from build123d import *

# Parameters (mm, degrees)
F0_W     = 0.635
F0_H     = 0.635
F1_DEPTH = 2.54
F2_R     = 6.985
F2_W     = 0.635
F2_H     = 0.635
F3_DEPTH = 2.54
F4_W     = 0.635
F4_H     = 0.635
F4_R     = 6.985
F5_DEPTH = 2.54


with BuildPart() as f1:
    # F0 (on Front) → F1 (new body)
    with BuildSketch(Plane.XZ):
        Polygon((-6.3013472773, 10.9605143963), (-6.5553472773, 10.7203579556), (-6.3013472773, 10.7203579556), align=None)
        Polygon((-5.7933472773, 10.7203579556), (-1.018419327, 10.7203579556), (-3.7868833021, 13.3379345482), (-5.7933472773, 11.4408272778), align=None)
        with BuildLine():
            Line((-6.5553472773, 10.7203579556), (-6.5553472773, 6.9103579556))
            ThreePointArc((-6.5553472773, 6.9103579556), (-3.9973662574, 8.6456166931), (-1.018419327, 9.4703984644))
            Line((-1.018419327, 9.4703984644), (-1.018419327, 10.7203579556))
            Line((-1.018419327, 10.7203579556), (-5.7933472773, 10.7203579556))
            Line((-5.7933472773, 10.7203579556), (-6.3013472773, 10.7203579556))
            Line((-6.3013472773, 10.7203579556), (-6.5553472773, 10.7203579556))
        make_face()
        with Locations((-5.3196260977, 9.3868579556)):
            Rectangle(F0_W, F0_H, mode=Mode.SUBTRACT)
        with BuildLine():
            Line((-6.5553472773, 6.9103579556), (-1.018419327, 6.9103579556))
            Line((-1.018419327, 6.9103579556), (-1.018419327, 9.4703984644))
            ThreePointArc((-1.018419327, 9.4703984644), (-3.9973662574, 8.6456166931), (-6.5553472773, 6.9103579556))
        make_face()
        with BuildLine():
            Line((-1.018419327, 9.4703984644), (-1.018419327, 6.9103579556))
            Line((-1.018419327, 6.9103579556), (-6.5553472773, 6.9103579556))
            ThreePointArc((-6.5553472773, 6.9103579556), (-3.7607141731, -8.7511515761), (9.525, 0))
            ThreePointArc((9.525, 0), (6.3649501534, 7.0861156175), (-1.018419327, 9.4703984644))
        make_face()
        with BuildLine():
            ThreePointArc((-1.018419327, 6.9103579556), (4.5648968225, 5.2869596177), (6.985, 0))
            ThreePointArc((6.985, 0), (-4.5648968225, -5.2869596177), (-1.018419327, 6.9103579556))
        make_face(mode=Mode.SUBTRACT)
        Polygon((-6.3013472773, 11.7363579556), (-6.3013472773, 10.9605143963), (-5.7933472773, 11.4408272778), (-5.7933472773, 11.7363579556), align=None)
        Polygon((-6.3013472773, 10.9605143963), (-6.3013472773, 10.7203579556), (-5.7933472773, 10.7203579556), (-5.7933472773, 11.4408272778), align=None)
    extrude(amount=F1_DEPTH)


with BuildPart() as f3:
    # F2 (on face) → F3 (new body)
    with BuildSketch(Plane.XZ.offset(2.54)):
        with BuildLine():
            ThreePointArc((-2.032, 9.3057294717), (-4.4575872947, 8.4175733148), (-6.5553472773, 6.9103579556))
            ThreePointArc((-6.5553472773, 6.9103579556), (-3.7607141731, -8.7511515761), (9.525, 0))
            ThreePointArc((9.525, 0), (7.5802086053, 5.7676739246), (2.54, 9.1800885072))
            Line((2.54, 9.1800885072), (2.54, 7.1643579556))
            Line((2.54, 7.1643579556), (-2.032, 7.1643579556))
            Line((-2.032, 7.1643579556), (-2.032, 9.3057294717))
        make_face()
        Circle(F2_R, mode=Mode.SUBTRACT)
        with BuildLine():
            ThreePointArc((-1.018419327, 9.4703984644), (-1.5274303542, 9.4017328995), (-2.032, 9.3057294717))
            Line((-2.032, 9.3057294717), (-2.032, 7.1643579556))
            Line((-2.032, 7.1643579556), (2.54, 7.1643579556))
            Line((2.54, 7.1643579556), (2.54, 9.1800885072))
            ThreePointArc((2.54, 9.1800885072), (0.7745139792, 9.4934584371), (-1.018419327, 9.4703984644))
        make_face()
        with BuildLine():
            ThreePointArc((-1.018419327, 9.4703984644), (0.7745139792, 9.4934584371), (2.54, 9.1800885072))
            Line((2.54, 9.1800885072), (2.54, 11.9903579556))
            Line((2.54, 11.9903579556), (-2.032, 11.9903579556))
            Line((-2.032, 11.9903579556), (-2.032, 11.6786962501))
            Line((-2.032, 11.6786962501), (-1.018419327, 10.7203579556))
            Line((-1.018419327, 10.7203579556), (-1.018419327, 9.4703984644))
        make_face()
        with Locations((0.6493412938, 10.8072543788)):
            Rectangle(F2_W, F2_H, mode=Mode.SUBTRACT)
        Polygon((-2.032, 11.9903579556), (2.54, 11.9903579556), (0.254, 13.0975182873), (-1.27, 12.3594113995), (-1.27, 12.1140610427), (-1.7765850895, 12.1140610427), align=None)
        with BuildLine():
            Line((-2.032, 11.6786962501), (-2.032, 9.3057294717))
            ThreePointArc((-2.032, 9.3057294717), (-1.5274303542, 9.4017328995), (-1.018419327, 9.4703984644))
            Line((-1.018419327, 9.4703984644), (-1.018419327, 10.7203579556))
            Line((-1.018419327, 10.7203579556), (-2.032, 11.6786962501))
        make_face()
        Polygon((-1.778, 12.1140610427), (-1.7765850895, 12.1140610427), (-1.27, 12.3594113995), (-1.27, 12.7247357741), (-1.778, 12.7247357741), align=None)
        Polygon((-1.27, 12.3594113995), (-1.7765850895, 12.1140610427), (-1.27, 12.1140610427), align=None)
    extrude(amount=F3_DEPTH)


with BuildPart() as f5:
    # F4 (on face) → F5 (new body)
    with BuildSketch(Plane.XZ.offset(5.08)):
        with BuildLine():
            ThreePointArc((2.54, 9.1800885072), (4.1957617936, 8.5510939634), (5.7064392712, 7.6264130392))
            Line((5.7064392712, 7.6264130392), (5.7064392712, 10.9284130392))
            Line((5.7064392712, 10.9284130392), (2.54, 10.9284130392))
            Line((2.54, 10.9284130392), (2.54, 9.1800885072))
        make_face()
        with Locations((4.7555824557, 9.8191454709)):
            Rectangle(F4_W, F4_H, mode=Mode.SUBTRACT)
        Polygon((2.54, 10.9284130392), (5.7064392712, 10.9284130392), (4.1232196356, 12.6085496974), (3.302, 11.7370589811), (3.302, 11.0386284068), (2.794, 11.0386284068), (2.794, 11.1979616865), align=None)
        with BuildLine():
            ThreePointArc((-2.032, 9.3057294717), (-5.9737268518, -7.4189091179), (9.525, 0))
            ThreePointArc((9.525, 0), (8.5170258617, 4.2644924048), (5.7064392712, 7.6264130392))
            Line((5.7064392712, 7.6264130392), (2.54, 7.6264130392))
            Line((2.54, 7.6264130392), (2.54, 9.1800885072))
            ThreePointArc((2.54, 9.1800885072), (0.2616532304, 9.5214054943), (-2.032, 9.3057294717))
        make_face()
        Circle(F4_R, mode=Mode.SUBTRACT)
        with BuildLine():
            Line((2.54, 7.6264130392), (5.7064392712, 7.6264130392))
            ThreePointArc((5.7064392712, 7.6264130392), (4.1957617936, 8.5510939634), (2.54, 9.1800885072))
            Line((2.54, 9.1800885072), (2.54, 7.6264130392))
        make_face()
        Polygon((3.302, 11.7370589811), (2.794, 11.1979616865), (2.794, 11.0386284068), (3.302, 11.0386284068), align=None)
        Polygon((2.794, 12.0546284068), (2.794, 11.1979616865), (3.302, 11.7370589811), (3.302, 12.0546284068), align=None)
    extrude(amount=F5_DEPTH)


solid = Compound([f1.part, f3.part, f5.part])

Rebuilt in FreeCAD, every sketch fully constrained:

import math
import FreeCAD as App
import Part
import Sketcher

V = App.Vector
Q = App.Units.Quantity

doc = App.newDocument("Part")
body = doc.addObject("PartDesign::Body", "Body")

# Sketch on XZ plane
sketch1 = body.newObject("Sketcher::SketchObject", "Sketch")
sketch1.AttachmentSupport = (doc.getObject("XZ_Plane"), [""])
sketch1.MapMode = "FlatFace"
sketch1.addGeometry([
    Part.LineSegment(V(-6.301347, 11.736358, 0), V(-6.301347, 10.960514, 0)),  # 0
    Part.LineSegment(V(-6.301347, 10.960514, 0), V(-6.555347, 10.720358, 0)),  # 1
    Part.LineSegment(V(-6.555347, 10.720358, 0), V(-6.555347, 6.910358, 0)),  # 2
    Part.ArcOfCircle(Part.Circle(V(0, 0, 0), V(0, 0, 1), 9.525), math.radians(133.4898), math.radians(360)),  # 3
    Part.ArcOfCircle(Part.Circle(V(0, 0, 0), V(0, 0, 1), 9.525), math.radians(0), math.radians(96.137836)),  # 4
    Part.LineSegment(V(-1.018419, 9.470398, 0), V(-1.018419, 10.720358, 0)),  # 5
    Part.LineSegment(V(-1.018419, 10.720358, 0), V(-3.786883, 13.337935, 0)),  # 6
    Part.LineSegment(V(-3.786883, 13.337935, 0), V(-5.793347, 11.440827, 0)),  # 7
    Part.LineSegment(V(-5.793347, 11.440827, 0), V(-5.793347, 11.736358, 0)),  # 8
    Part.LineSegment(V(-5.793347, 11.736358, 0), V(-6.301347, 11.736358, 0)),  # 9
    Part.ArcOfCircle(Part.Circle(V(0, 0, 0), V(0, 0, 1), 6.985), math.radians(98.383661), math.radians(360)),  # 10
    Part.ArcOfCircle(Part.Circle(V(0, 0, 0), V(0, 0, 1), 6.985), math.radians(0), math.radians(98.383661)),  # 11
    Part.LineSegment(V(-5.002126, 9.069358, 0), V(-5.637126, 9.069358, 0)),  # 12
    Part.LineSegment(V(-5.637126, 9.069358, 0), V(-5.637126, 9.704358, 0)),  # 13
    Part.LineSegment(V(-5.637126, 9.704358, 0), V(-5.002126, 9.704358, 0)),  # 14
    Part.LineSegment(V(-5.002126, 9.704358, 0), V(-5.002126, 9.069358, 0)),  # 15
], False)
sketch1.addConstraint([
    Sketcher.Constraint("Coincident", 0, 2, 1, 1),
    Sketcher.Constraint("Coincident", 1, 2, 2, 1),
    Sketcher.Constraint("Coincident", 2, 2, 3, 1),
    Sketcher.Constraint("Coincident", 3, 2, 4, 1),
    Sketcher.Constraint("Coincident", 4, 2, 5, 1),
    Sketcher.Constraint("Coincident", 5, 2, 6, 1),
    Sketcher.Constraint("Coincident", 6, 2, 7, 1),
    Sketcher.Constraint("Coincident", 7, 2, 8, 1),
    Sketcher.Constraint("Coincident", 8, 2, 9, 1),
    Sketcher.Constraint("Coincident", 9, 2, 0, 1),
    Sketcher.Constraint("Coincident", 10, 1, 11, 2),
    Sketcher.Constraint("Coincident", 11, 1, 10, 2),
    Sketcher.Constraint("Coincident", 12, 2, 13, 1),
    Sketcher.Constraint("Coincident", 13, 2, 14, 1),
    Sketcher.Constraint("Coincident", 14, 2, 15, 1),
    Sketcher.Constraint("Coincident", 15, 2, 12, 1),
    Sketcher.Constraint("Vertical", 0),
    Sketcher.Constraint("Vertical", 2),
    Sketcher.Constraint("Vertical", 5),
    Sketcher.Constraint("Vertical", 8),
    Sketcher.Constraint("Horizontal", 9),
    Sketcher.Constraint("Horizontal", 12),
    Sketcher.Constraint("Vertical", 13),
    Sketcher.Constraint("Horizontal", 14),
    Sketcher.Constraint("Vertical", 15),
    Sketcher.Constraint("Coincident", 3, 3, -1, 1),
    Sketcher.Constraint("Coincident", 4, 3, -1, 1),
    Sketcher.Constraint("Coincident", 10, 3, -1, 1),
    Sketcher.Constraint("PointOnObject", 3, 2, -1),
    Sketcher.Constraint("PointOnObject", 11, 1, -1),
    Sketcher.Constraint("Radius", 3, Q("0.375 in")),
    Sketcher.Constraint("Radius", 10, Q("0.275 in")),
    Sketcher.Constraint("Radius", 11, Q("0.275 in")),
    Sketcher.Constraint("DistanceX", 9, 2, 9, 1, Q("0.02 in")),
    Sketcher.Constraint("DistanceY", 2, 2, 2, 1, Q("0.15 in")),
    Sketcher.Constraint("Distance", 6, Q("0.15 in")),
    Sketcher.Constraint("DistanceX", 12, 2, 12, 1, Q("0.025 in")),
    Sketcher.Constraint("DistanceY", 13, 1, 13, 2, Q("0.025 in")),
    Sketcher.Constraint("DistanceX", 1, 2, 0, 2, Q("0.01 in")),
    Sketcher.Constraint("DistanceY", 2, 2, 5, 2, Q("0.15 in")),
    Sketcher.Constraint("DistanceY", 1, 2, 8, 2, Q("0.04 in")),
    Sketcher.Constraint("DistanceY", 10, 1, 5, 2, Q("0.15 in")),
    Sketcher.Constraint("DistanceY", 13, 2, 1, 2, Q("0.04 in")),
    Sketcher.Constraint("DistanceY", 5, 1, 5, 2, Q("1.249959 mm")),
    Sketcher.Constraint("DistanceY", 8, 1, 8, 2, Q("0.295531 mm")),
    Sketcher.Constraint("DistanceY", -1, 1, 4, 2, Q("9.470398 mm")),
    Sketcher.Constraint("Distance", 1, Q("0.349558 mm")),
    Sketcher.Constraint("DistanceY", 0, 2, 6, 2, Q("2.37742 mm")),
    Sketcher.Constraint("DistanceX", 1, 2, 12, 2, Q("0.918221 mm")),
])
pad1 = body.newObject("PartDesign::Pad", "Pad")
pad1.Profile = sketch1
pad1.Length = Q("0.1 in")
body2 = doc.addObject("PartDesign::Body", "Body001")

# Sketch on XZ plane
sketch2 = body2.newObject("Sketcher::SketchObject", "Sketch001")
sketch2.AttachmentSupport = (doc.getObject("XZ_Plane001"), [""])
sketch2.MapMode = "FlatFace"
sketch2.AttachmentOffset = App.Placement(V(0, 0, 0.1 * 25.4), App.Rotation())
sketch2.addGeometry([
    Part.LineSegment(V(-2.032, 11.9904, 0), V(-2.032, 9.3057, 0)),  # 0
    Part.ArcOfCircle(Part.Circle(V(0, 0, 0), V(0, 0, 1), 9.525), math.radians(102), math.radians(133)),  # 1
    Part.ArcOfCircle(Part.Circle(V(0, 0, 0), V(0, 0, 1), 9.525), math.radians(133), math.radians(360)),  # 2
    Part.ArcOfCircle(Part.Circle(V(0, 0, 0), V(0, 0, 1), 9.525), math.radians(0), math.radians(75)),  # 3
    Part.LineSegment(V(2.54, 9.1801, 0), V(2.54, 11.9904, 0)),  # 4
    Part.LineSegment(V(2.54, 11.9904, 0), V(0.254, 13.0975, 0)),  # 5
    Part.LineSegment(V(0.254, 13.0975, 0), V(-1.27, 12.3594, 0)),  # 6
    Part.LineSegment(V(-1.27, 12.3594, 0), V(-1.27, 12.7247, 0)),  # 7
    Part.LineSegment(V(-1.27, 12.7247, 0), V(-1.778, 12.7247, 0)),  # 8
    Part.LineSegment(V(-1.778, 12.7247, 0), V(-1.778, 12.1141, 0)),  # 9
    Part.LineSegment(V(-1.778, 12.1141, 0), V(-1.7766, 12.1141, 0)),  # 10
    Part.LineSegment(V(-1.7766, 12.1141, 0), V(-2.032, 11.9904, 0)),  # 11
    Part.Circle(V(0, 0, 0), V(0, 0, 1), 6.985),  # 12
    Part.LineSegment(V(0.9668, 10.4898, 0), V(0.3318, 10.4898, 0)),  # 13
    Part.LineSegment(V(0.3318, 10.4898, 0), V(0.3318, 11.1248, 0)),  # 14
    Part.LineSegment(V(0.3318, 11.1248, 0), V(0.9668, 11.1248, 0)),  # 15
    Part.LineSegment(V(0.9668, 11.1248, 0), V(0.9668, 10.4898, 0)),  # 16
], False)
sketch2.addConstraint([
    Sketcher.Constraint("Coincident", 0, 2, 1, 1),
    Sketcher.Constraint("Tangent", 1, 2, 2, 1),
    Sketcher.Constraint("Tangent", 2, 2, 3, 1),
    Sketcher.Constraint("Coincident", 3, 2, 4, 1),
    Sketcher.Constraint("Coincident", 4, 2, 5, 1),
    Sketcher.Constraint("Coincident", 5, 2, 6, 1),
    Sketcher.Constraint("Coincident", 6, 2, 7, 1),
    Sketcher.Constraint("Coincident", 7, 2, 8, 1),
    Sketcher.Constraint("Coincident", 8, 2, 9, 1),
    Sketcher.Constraint("Coincident", 9, 2, 10, 1),
    Sketcher.Constraint("Coincident", 10, 2, 11, 1),
    Sketcher.Constraint("Coincident", 11, 2, 0, 1),
    Sketcher.Constraint("Coincident", 13, 2, 14, 1),
    Sketcher.Constraint("Coincident", 14, 2, 15, 1),
    Sketcher.Constraint("Coincident", 15, 2, 16, 1),
    Sketcher.Constraint("Coincident", 16, 2, 13, 1),
    Sketcher.Constraint("Vertical", 0),
    Sketcher.Constraint("Vertical", 4),
    Sketcher.Constraint("Vertical", 7),
    Sketcher.Constraint("Horizontal", 8),
    Sketcher.Constraint("Vertical", 9),
    Sketcher.Constraint("Horizontal", 10),
    Sketcher.Constraint("Horizontal", 13),
    Sketcher.Constraint("Vertical", 14),
    Sketcher.Constraint("Horizontal", 15),
    Sketcher.Constraint("Vertical", 16),
    Sketcher.Constraint("Coincident", 1, 3, -1, 1),
    Sketcher.Constraint("Coincident", 3, 3, -1, 1),
    Sketcher.Constraint("Coincident", 12, 3, -1, 1),
    Sketcher.Constraint("PointOnObject", 2, 2, -1),
    Sketcher.Constraint("Parallel", 6, 11),
    Sketcher.Constraint("Horizontal", 4, 2, 11, 2),
    Sketcher.Constraint("Equal", 15, 14),
    Sketcher.Constraint("Diameter", 12, Q("0.55 in")),
    Sketcher.Constraint("Radius", 1, Q("0.375 in")),
    Sketcher.Constraint("Distance", 5, Q("0.1 in")),
    Sketcher.Constraint("DistanceX", 8, 2, 8, 1, Q("0.02 in")),
    Sketcher.Constraint("DistanceX", -1, 1, 3, 2, Q("0.1 in")),
    Sketcher.Constraint("DistanceY", 1, 2, 4, 2, Q("0.2 in")),
    Sketcher.Constraint("DistanceX", 13, 2, 13, 1, Q("0.025 in")),
    Sketcher.Constraint("DistanceX", 0, 2, -1, 1, Q("0.08 in")),
    Sketcher.Constraint("DistanceX", -1, 1, 5, 2, Q("0.01 in")),
    Sketcher.Constraint("DistanceX", 6, 2, -1, 1, Q("0.05 in")),
    Sketcher.Constraint("DistanceY", 0, 2, 0, 1, Q("2.684628 mm")),
    Sketcher.Constraint("DistanceX", 10, 1, 10, 2, Q("0.001415 mm")),
    Sketcher.Constraint("DistanceY", 7, 1, 7, 2, Q("0.365324 mm")),
    Sketcher.Constraint("DistanceY", 9, 2, 9, 1, Q("0.610675 mm")),
    Sketcher.Constraint("DistanceX", -1, 1, 13, 2, Q("0.331841 mm")),
    Sketcher.Constraint("DistanceY", 14, 2, 7, 2, Q("1.599981 mm")),
])
pad2 = body2.newObject("PartDesign::Pad", "Pad001")
pad2.Profile = sketch2
pad2.Length = Q("0.1 in")
body3 = doc.addObject("PartDesign::Body", "Body002")

# Sketch on XZ plane
sketch3 = body3.newObject("Sketcher::SketchObject", "Sketch002")
sketch3.AttachmentSupport = (doc.getObject("XZ_Plane002"), [""])
sketch3.MapMode = "FlatFace"
sketch3.AttachmentOffset = App.Placement(V(0, 0, 0.2 * 25.4), App.Rotation())
sketch3.addGeometry([
    Part.LineSegment(V(5.71, 7.63, 0), V(5.71, 10.93, 0)),  # 0
    Part.LineSegment(V(5.71, 10.93, 0), V(4.12, 12.61, 0)),  # 1
    Part.LineSegment(V(4.12, 12.61, 0), V(3.3, 11.74, 0)),  # 2
    Part.LineSegment(V(3.3, 11.74, 0), V(3.3, 12.05, 0)),  # 3
    Part.LineSegment(V(3.3, 12.05, 0), V(2.79, 12.05, 0)),  # 4
    Part.LineSegment(V(2.79, 12.05, 0), V(2.79, 11.2, 0)),  # 5
    Part.LineSegment(V(2.79, 11.2, 0), V(2.54, 10.93, 0)),  # 6
    Part.LineSegment(V(2.54, 10.93, 0), V(2.54, 9.18, 0)),  # 7
    Part.ArcOfCircle(Part.Circle(V(0, 0, 0), V(0, 0, 1), 9.53), math.radians(75), math.radians(102)),  # 8
    Part.ArcOfCircle(Part.Circle(V(0, 0, 0), V(0, 0, 1), 9.53), math.radians(102), math.radians(360)),  # 9
    Part.ArcOfCircle(Part.Circle(V(0, 0, 0), V(0, 0, 1), 9.53), math.radians(0), math.radians(53)),  # 10
    Part.LineSegment(V(5.07, 9.5, 0), V(4.44, 9.5, 0)),  # 11
    Part.LineSegment(V(4.44, 9.5, 0), V(4.44, 10.14, 0)),  # 12
    Part.LineSegment(V(4.44, 10.14, 0), V(5.07, 10.14, 0)),  # 13
    Part.LineSegment(V(5.07, 10.14, 0), V(5.07, 9.5, 0)),  # 14
    Part.Circle(V(0, 0, 0), V(0, 0, 1), 6.99),  # 15
], False)
sketch3.addConstraint([
    Sketcher.Constraint("Coincident", 0, 2, 1, 1),
    Sketcher.Constraint("Coincident", 1, 2, 2, 1),
    Sketcher.Constraint("Coincident", 2, 2, 3, 1),
    Sketcher.Constraint("Coincident", 3, 2, 4, 1),
    Sketcher.Constraint("Coincident", 4, 2, 5, 1),
    Sketcher.Constraint("Coincident", 5, 2, 6, 1),
    Sketcher.Constraint("Coincident", 6, 2, 7, 1),
    Sketcher.Constraint("Coincident", 7, 2, 8, 1),
    Sketcher.Constraint("Tangent", 8, 2, 9, 1),
    Sketcher.Constraint("Tangent", 9, 2, 10, 1),
    Sketcher.Constraint("Coincident", 10, 2, 0, 1),
    Sketcher.Constraint("Coincident", 11, 2, 12, 1),
    Sketcher.Constraint("Coincident", 12, 2, 13, 1),
    Sketcher.Constraint("Coincident", 13, 2, 14, 1),
    Sketcher.Constraint("Coincident", 14, 2, 11, 1),
    Sketcher.Constraint("Vertical", 0),
    Sketcher.Constraint("Vertical", 3),
    Sketcher.Constraint("Horizontal", 4),
    Sketcher.Constraint("Vertical", 5),
    Sketcher.Constraint("Vertical", 7),
    Sketcher.Constraint("Horizontal", 11),
    Sketcher.Constraint("Vertical", 12),
    Sketcher.Constraint("Horizontal", 13),
    Sketcher.Constraint("Vertical", 14),
    Sketcher.Constraint("Coincident", 8, 3, -1, 1),
    Sketcher.Constraint("Coincident", 10, 3, -1, 1),
    Sketcher.Constraint("Coincident", 15, 3, -1, 1),
    Sketcher.Constraint("PointOnObject", 9, 2, -1),
    Sketcher.Constraint("Parallel", 2, 6),
    Sketcher.Constraint("Horizontal", 0, 2, 6, 2),
    Sketcher.Constraint("Equal", 13, 12),
    Sketcher.Constraint("Diameter", 15, Q("0.55 in")),
    Sketcher.Constraint("Radius", 8, Q("0.375 in")),
    Sketcher.Constraint("DistanceX", 4, 2, 4, 1, Q("0.02 in")),
    Sketcher.Constraint("DistanceY", 0, 1, 0, 2, Q("0.13 in")),
    Sketcher.Constraint("DistanceX", -1, 1, 6, 2, Q("0.1 in")),
    Sketcher.Constraint("DistanceX", 11, 2, 11, 1, Q("0.025 in")),
    Sketcher.Constraint("DistanceX", -1, 1, 2, 2, Q("0.13 in")),
    Sketcher.Constraint("DistanceX", 8, 2, -1, 1, Q("0.08 in")),
    Sketcher.Constraint("DistanceY", 3, 1, 3, 2, Q("0.317569 mm")),
    Sketcher.Constraint("DistanceY", 8, 2, 4, 2, Q("2.748899 mm")),
    Sketcher.Constraint("Distance", 1, Q("2.308559 mm")),
    Sketcher.Constraint("Distance", 6, Q("0.370368 mm")),
    Sketcher.Constraint("DistanceY", 5, 2, 5, 1, Q("0.856667 mm")),
    Sketcher.Constraint("DistanceX", -1, 1, 11, 2, Q("4.438082 mm")),
    Sketcher.Constraint("DistanceY", -1, 1, 11, 2, Q("9.501645 mm")),
])
pad3 = body3.newObject("PartDesign::Pad", "Pad002")
pad3.Profile = sketch3
pad3.Length = Q("0.1 in")

doc.recompute()
